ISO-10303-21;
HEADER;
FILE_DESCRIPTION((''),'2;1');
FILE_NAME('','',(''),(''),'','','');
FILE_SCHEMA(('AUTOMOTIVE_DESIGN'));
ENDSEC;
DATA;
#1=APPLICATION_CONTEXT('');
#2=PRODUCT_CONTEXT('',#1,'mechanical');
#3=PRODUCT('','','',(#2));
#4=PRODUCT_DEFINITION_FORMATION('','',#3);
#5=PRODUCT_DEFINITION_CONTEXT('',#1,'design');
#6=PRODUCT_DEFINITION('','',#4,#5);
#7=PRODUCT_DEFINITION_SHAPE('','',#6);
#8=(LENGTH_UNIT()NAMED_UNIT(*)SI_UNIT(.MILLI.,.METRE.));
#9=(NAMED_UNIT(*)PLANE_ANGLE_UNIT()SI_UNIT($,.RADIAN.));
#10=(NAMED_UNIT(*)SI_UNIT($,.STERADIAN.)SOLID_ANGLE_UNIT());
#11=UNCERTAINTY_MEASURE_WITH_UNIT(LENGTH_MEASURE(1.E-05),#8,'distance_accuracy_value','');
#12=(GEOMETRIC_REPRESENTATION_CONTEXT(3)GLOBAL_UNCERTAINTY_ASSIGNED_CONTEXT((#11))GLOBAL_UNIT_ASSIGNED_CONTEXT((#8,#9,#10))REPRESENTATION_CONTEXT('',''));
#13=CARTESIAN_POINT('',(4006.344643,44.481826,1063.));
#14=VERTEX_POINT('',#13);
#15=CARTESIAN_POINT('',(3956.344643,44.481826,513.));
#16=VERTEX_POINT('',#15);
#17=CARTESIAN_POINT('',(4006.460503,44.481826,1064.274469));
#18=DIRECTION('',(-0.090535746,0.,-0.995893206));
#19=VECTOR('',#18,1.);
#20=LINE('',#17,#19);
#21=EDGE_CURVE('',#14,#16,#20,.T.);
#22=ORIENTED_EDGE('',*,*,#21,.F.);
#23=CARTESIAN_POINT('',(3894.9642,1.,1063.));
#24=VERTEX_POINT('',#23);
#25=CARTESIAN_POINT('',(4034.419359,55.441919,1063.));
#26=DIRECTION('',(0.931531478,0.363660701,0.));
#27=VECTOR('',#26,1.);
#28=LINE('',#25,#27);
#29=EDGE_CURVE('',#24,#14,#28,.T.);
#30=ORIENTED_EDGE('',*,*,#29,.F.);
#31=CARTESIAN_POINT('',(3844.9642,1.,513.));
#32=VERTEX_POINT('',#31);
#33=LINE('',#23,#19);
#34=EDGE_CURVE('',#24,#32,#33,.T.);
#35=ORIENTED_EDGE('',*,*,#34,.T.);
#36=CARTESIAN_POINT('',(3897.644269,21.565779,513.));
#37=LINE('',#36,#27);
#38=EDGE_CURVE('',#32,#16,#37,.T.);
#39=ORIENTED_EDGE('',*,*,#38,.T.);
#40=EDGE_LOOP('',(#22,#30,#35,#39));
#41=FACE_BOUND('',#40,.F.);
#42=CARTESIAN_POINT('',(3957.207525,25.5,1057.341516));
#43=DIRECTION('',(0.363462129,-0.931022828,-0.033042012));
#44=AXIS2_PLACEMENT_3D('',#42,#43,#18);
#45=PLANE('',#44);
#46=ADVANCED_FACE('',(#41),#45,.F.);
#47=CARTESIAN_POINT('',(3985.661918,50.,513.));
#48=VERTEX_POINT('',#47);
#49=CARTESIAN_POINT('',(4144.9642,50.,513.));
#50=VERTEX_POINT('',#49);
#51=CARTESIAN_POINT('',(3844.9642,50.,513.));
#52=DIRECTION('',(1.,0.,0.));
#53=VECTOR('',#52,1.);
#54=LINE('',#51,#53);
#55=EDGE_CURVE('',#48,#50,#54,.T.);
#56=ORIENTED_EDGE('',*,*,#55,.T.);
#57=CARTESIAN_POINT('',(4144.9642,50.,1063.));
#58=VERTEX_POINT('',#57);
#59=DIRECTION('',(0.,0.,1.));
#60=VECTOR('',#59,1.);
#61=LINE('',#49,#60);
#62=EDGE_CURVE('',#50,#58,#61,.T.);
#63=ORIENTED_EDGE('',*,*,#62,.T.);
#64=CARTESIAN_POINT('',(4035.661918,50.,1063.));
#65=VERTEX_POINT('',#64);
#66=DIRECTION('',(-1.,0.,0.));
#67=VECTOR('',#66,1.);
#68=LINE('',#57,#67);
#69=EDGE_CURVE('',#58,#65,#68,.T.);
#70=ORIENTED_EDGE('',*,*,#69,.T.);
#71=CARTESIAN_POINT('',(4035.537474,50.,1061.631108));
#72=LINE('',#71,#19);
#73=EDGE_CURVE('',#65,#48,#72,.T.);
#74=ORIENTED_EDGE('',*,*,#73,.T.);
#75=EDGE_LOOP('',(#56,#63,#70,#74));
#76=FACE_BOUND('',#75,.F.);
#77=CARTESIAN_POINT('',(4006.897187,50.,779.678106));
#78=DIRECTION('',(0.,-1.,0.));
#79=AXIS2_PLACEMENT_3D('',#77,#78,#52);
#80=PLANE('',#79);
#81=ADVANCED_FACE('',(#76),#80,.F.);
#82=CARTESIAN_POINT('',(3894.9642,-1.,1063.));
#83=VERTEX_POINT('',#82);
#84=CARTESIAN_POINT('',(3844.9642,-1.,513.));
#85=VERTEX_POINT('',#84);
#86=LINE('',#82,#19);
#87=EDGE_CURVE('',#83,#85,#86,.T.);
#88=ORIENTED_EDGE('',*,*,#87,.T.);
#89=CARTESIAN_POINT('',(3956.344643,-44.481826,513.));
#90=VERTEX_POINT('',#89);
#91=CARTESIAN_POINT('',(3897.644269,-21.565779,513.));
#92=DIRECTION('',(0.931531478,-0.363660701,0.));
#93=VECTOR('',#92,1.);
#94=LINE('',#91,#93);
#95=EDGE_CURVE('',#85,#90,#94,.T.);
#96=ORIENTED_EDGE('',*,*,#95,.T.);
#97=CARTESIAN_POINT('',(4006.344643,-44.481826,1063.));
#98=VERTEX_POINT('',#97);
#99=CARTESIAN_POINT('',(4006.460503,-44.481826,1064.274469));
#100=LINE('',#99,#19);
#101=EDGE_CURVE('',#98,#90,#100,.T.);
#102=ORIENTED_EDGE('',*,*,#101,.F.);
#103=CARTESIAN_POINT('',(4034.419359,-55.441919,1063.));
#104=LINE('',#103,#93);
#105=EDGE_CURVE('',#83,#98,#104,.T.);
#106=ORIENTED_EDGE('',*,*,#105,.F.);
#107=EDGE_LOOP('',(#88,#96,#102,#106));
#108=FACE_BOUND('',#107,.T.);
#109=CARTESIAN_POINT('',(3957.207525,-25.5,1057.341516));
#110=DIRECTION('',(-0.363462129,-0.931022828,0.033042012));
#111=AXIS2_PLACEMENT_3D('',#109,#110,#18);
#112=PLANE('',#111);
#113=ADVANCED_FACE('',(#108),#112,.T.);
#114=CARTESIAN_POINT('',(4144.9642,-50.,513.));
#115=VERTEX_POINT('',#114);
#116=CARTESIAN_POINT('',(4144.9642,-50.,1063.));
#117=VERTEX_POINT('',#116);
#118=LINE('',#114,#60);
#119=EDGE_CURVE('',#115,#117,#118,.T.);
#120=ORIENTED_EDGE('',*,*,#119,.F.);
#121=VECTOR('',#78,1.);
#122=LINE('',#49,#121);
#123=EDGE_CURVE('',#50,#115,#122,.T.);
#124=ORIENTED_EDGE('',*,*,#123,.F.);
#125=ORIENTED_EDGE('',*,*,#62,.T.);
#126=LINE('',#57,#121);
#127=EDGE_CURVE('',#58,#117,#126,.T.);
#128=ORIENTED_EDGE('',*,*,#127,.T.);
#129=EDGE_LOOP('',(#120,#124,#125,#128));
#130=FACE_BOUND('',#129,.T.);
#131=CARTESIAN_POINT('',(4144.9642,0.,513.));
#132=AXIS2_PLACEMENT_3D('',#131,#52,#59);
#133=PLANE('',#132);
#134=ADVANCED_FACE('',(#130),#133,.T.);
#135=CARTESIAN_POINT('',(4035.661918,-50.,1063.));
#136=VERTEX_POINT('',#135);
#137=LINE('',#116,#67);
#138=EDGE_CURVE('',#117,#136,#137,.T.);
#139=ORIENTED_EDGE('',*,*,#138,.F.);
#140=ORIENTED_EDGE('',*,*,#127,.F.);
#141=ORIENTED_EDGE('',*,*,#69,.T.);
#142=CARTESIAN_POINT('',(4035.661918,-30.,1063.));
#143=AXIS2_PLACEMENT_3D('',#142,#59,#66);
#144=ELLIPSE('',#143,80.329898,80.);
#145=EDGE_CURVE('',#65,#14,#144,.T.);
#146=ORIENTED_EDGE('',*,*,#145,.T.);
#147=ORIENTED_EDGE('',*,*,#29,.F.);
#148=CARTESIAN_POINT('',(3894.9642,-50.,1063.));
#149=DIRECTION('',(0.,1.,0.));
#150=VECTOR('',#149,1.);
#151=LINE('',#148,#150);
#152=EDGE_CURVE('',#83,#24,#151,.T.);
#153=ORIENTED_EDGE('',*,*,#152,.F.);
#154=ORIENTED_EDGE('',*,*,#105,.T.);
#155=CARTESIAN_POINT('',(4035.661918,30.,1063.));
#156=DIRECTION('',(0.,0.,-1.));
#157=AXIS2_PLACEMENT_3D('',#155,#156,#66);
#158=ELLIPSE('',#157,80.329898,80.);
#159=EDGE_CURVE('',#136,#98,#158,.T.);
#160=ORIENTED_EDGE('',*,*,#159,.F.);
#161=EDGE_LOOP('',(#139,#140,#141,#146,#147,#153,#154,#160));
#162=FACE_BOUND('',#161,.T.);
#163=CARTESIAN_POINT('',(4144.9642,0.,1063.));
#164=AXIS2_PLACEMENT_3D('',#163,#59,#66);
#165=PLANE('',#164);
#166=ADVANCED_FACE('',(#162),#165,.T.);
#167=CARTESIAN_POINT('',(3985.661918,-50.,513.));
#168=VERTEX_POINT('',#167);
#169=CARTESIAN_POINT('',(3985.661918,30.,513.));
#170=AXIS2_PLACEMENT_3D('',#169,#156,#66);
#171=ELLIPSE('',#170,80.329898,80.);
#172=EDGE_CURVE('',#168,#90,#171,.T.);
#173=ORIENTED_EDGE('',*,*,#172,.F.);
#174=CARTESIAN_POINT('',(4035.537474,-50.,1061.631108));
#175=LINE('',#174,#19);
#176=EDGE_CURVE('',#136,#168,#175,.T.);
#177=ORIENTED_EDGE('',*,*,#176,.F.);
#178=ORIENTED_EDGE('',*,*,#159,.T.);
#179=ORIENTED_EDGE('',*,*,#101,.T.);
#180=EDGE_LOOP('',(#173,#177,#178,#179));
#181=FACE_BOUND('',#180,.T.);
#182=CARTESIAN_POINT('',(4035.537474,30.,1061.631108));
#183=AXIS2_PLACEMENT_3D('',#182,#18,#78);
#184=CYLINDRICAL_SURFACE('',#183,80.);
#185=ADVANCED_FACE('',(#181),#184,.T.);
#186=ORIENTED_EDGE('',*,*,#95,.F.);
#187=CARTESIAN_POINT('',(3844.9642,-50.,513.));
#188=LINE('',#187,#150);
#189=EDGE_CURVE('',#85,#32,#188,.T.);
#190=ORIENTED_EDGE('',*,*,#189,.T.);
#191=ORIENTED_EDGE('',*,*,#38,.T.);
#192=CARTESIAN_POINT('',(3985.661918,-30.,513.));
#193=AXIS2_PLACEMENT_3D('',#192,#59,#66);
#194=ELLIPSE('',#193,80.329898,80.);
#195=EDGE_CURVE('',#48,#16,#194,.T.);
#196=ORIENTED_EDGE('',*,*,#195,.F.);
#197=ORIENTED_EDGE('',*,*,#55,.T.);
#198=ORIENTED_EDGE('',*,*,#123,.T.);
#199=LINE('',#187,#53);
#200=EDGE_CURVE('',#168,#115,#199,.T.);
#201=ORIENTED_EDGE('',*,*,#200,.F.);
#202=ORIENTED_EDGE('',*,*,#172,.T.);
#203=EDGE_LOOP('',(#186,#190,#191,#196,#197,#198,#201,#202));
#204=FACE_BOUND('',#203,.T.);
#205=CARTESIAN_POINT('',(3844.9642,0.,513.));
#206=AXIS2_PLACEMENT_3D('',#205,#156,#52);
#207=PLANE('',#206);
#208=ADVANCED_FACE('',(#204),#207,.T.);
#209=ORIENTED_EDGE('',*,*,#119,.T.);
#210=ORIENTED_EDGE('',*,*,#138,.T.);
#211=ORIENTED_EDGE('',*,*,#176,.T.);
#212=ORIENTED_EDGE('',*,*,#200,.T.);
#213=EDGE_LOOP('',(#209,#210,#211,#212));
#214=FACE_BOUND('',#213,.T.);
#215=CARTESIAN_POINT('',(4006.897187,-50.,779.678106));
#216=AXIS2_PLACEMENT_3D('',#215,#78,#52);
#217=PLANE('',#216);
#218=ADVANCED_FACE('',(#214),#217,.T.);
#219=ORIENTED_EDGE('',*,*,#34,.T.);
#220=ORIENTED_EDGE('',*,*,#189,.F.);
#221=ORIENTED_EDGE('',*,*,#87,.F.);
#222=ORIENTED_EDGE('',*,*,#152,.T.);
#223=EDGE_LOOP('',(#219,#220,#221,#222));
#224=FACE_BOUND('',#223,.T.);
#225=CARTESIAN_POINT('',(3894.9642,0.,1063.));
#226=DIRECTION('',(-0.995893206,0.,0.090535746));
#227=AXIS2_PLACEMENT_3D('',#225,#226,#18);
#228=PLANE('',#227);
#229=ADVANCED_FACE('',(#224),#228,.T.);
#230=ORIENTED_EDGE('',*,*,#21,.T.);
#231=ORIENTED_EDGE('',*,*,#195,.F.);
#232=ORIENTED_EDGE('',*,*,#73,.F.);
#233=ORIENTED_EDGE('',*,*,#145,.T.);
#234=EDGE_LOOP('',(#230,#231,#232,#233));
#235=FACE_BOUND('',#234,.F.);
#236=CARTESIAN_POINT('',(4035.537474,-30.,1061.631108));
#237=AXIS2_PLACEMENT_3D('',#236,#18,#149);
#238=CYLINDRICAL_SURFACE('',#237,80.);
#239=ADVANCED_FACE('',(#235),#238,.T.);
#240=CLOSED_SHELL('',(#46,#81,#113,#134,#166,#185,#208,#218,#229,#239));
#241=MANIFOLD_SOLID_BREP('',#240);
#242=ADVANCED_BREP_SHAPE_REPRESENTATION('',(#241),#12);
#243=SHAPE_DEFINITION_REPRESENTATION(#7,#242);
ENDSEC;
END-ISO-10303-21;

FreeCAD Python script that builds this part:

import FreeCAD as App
import Part
import Sketcher
from FreeCAD import Vector


def edges_at(feature, points):
    """Names of the edges that pass closest to the given points."""
    edges = feature.Shape.Edges
    near = lambda p: min(range(len(edges)), key=lambda i: edges[i].distToShape(Part.Vertex(*p))[0])
    return sorted({f"Edge{near(p) + 1}" for p in points})


def add_polygon(sketch, points):
    """Adds a closed chain of lines whose ends are joined by coincident constraints."""
    first, n = sketch.GeometryCount, len(points)
    for a, b in zip(points, points[1:] + points[:1]):
        sketch.addGeometry(Part.LineSegment(App.Vector(*a, 0), App.Vector(*b, 0)), False)
    for i in range(n):
        sketch.addConstraint(Sketcher.Constraint("Coincident", first + i, 2, first + (i + 1) % n, 1))

doc = App.newDocument("Part")
body = doc.addObject("PartDesign::Body", "Body")

# Sketch on XZ plane
sketch1 = body.newObject("Sketcher::SketchObject", "Sketch")
sketch1.AttachmentSupport = (doc.getObject("XZ_Plane"), [""])
sketch1.MapMode = "FlatFace"
add_polygon(sketch1, [(0, 0), (300, 0), (300, 550), (50, 550)])  # lines 0-3
sketch1.addConstraint(Sketcher.Constraint("Horizontal", 0))
sketch1.addConstraint(Sketcher.Constraint("Vertical", 1))
sketch1.addConstraint(Sketcher.Constraint("Horizontal", 2))
sketch1.addConstraint(Sketcher.Constraint("Coincident", 3, 2, -1, 1))
sketch1.addConstraint(Sketcher.Constraint("DistanceX", 0, 1, 0, 2, 300.0))
sketch1.addConstraint(Sketcher.Constraint("DistanceX", 2, 2, 2, 1, 250.0))
sketch1.addConstraint(Sketcher.Constraint("DistanceY", 1, 1, 1, 2, 550.0))
pad1 = body.newObject("PartDesign::Pad", "Pad")
pad1.Profile = sketch1
pad1.Length = 100
pad1.Midplane = True
doc.recompute()

chamfer = body.newObject("PartDesign::Chamfer", "Chamfer")
chamfer.Base = (pad1, edges_at(pad1, [(25, 50, 275), (25, -50, 275)]))
chamfer.ChamferType = "Two distances"
chamfer.Size = 49
chamfer.Size2 = 125
body2 = doc.addObject("PartDesign::Body", "Body001")
doc.recompute()

body.Placement = App.Placement(Vector(3844.9642, 0, 513), App.Rotation(Vector(0, 0, 1), 0))
boolean = body2.newObject("PartDesign::Boolean", "Boolean")
boolean.Type = "Fuse"
boolean.addObjects([body])
doc.recompute()

fillet = body2.newObject("PartDesign::Fillet", "Fillet")
fillet.Base = (boolean, edges_at(boolean, [(3995.48, 50, 788), (3995.48, -50, 788)]))
fillet.Radius = 80

doc.recompute()
